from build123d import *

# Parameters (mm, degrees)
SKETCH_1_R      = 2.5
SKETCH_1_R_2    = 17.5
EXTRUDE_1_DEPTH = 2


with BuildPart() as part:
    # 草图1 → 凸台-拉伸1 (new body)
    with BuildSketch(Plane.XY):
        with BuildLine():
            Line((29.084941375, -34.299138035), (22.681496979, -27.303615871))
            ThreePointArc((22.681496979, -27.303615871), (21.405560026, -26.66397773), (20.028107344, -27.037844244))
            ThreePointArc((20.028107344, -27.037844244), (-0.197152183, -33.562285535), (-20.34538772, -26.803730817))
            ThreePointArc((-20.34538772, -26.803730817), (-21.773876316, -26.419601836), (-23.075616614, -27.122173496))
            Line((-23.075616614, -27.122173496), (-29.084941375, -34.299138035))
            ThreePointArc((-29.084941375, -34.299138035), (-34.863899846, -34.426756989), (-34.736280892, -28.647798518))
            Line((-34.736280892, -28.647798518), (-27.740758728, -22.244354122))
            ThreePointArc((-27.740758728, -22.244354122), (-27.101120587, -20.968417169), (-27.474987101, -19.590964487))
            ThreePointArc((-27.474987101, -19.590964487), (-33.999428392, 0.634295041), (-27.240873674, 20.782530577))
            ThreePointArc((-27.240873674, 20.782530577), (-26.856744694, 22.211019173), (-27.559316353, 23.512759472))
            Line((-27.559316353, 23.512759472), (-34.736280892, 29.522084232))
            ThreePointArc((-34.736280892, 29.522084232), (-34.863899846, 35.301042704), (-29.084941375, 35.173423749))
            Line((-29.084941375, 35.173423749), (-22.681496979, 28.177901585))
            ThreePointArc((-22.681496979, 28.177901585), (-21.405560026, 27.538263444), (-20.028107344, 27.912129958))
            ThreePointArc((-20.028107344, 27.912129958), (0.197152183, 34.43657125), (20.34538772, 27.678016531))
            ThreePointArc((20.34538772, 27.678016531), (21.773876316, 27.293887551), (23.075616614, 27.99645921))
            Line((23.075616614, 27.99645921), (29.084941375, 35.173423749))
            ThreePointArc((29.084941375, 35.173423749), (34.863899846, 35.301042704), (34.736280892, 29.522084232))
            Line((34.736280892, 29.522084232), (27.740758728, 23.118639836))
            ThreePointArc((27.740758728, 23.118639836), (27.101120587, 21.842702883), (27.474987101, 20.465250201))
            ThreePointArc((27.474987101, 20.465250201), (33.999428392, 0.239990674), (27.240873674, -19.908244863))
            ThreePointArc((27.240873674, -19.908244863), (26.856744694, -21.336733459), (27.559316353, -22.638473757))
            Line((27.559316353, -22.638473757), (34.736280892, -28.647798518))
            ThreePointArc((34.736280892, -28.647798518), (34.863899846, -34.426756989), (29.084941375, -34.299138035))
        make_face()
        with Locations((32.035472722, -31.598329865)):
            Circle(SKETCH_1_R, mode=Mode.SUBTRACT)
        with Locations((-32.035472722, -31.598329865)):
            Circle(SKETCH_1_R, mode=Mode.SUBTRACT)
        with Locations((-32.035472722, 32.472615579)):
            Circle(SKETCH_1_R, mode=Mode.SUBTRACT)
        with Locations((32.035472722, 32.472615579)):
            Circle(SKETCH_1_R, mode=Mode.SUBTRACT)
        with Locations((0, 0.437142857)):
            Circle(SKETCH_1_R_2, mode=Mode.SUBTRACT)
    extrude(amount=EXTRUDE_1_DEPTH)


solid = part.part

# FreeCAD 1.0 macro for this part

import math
import FreeCAD as App
import Part
import Sketcher

V = App.Vector
Q = App.Units.Quantity

doc = App.newDocument("Part")
params = doc.addObject("Spreadsheet::Sheet", "Params")
for row, (alias, value) in enumerate([
    ("sketch1_diameter", "5 mm"),
    ("sketch1_diameter2", "35 mm"),
    ("sketch1_radius", "4 mm"),
    ("sketch1_radius2", "2 mm"),
    ("sketch1_radius3", "34 mm"),
    ("pad1_length", "2 mm"),
], start=1):
    params.set(f"A{row}", alias)
    params.set(f"B{row}", "=" + value)
    params.setAlias(f"B{row}", alias)

body = doc.addObject("PartDesign::Body", "Body")

# Sketch on XY plane
sketch1 = doc.addObject("Sketcher::SketchObject", "Sketch")
body.addObject(sketch1)
sketch1.AttachmentSupport = (doc.XY_Plane, [""])
sketch1.MapMode = "FlatFace"
sketch1.addGeometry([
    Part.LineSegment(V(22.7, -27.3, 0), V(29.1, -34.3, 0)),  # 0
    Part.ArcOfCircle(Part.Circle(V(32, -31.6, 0), V(0, 0, 1), 4), math.radians(-138), math.radians(48)),  # 1
    Part.LineSegment(V(34.7, -28.6, 0), V(27.6, -22.6, 0)),  # 2
    Part.ArcOfCircle(Part.Circle(V(28.8, -21.1, 0), V(0, 0, 1), 2), math.radians(143), math.radians(230)),  # 3
    Part.ArcOfCircle(Part.Circle(V(0, 0.4, 0), V(0, 0, 1), 34), math.radians(-37), math.radians(36)),  # 4
    Part.ArcOfCircle(Part.Circle(V(29.1, 21.6, 0), V(0, 0, 1), 2), math.radians(132), math.radians(216)),  # 5
    Part.LineSegment(V(27.7, 23.1, 0), V(34.7, 29.5, 0)),  # 6
    Part.ArcOfCircle(Part.Circle(V(32, 32.5, 0), V(0, 0, 1), 4), math.radians(-48), math.radians(138)),  # 7
    Part.LineSegment(V(29.1, 35.2, 0), V(23.1, 28, 0)),  # 8
    Part.ArcOfCircle(Part.Circle(V(21.5, 29.3, 0), V(0, 0, 1), 2), math.radians(-127), math.radians(-40)),  # 9
    Part.ArcOfCircle(Part.Circle(V(0, 0.4, 0), V(0, 0, 1), 34), math.radians(53), math.radians(126)),  # 10
    Part.ArcOfCircle(Part.Circle(V(-21.2, 29.5, 0), V(0, 0, 1), 2), math.radians(-138), math.radians(-54)),  # 11
    Part.LineSegment(V(-22.7, 28.2, 0), V(-29.1, 35.2, 0)),  # 12
    Part.ArcOfCircle(Part.Circle(V(-32, 32.5, 0), V(0, 0, 1), 4), math.radians(42), math.radians(228)),  # 13
    Part.LineSegment(V(-34.7, 29.5, 0), V(-27.6, 23.5, 0)),  # 14
    Part.ArcOfCircle(Part.Circle(V(-28.8, 22, 0), V(0, 0, 1), 2), math.radians(-37), math.radians(50)),  # 15
    Part.ArcOfCircle(Part.Circle(V(0, 0.4, 0), V(0, 0, 1), 34), math.radians(143), math.radians(216)),  # 16
    Part.ArcOfCircle(Part.Circle(V(-29.1, -20.8, 0), V(0, 0, 1), 2), math.radians(-48), math.radians(36)),  # 17
    Part.LineSegment(V(-27.7, -22.2, 0), V(-34.7, -28.6, 0)),  # 18
    Part.ArcOfCircle(Part.Circle(V(-32, -31.6, 0), V(0, 0, 1), 4), math.radians(132), math.radians(318)),  # 19
    Part.LineSegment(V(-29.1, -34.3, 0), V(-23.1, -27.1, 0)),  # 20
    Part.ArcOfCircle(Part.Circle(V(-21.5, -28.4, 0), V(0, 0, 1), 2), math.radians(53), math.radians(140)),  # 21
    Part.ArcOfCircle(Part.Circle(V(0, 0.4, 0), V(0, 0, 1), 34), math.radians(-127), math.radians(-54)),  # 22
    Part.ArcOfCircle(Part.Circle(V(21.2, -28.7, 0), V(0, 0, 1), 2), math.radians(42), math.radians(126)),  # 23
    Part.Circle(V(32, -31.6, 0), V(0, 0, 1), 2.5),  # 24
    Part.Circle(V(-32, -31.6, 0), V(0, 0, 1), 2.5),  # 25
    Part.Circle(V(32, 32.5, 0), V(0, 0, 1), 2.5),  # 26
    Part.Circle(V(0, 0.4, 0), V(0, 0, 1), 17.5),  # 27
    Part.Circle(V(-32, 32.5, 0), V(0, 0, 1), 2.5),  # 28
], False)
sketch1.addConstraint([
    Sketcher.Constraint("Tangent", 0, 2, 1, 1),
    Sketcher.Constraint("Coincident", 1, 2, 2, 1),
    Sketcher.Constraint("Tangent", 2, 2, 3, 2),
    Sketcher.Constraint("Tangent", 3, 1, 4, 1),
    Sketcher.Constraint("Tangent", 4, 2, 5, 2),
    Sketcher.Constraint("Tangent", 5, 1, 6, 1),
    Sketcher.Constraint("Tangent", 6, 2, 7, 1),
    Sketcher.Constraint("Coincident", 7, 2, 8, 1),
    Sketcher.Constraint("Tangent", 8, 2, 9, 2),
    Sketcher.Constraint("Tangent", 9, 1, 10, 1),
    Sketcher.Constraint("Tangent", 10, 2, 11, 2),
    Sketcher.Constraint("Tangent", 11, 1, 12, 1),
    Sketcher.Constraint("Tangent", 12, 2, 13, 1),
    Sketcher.Constraint("Coincident", 13, 2, 14, 1),
    Sketcher.Constraint("Tangent", 14, 2, 15, 2),
    Sketcher.Constraint("Tangent", 15, 1, 16, 1),
    Sketcher.Constraint("Tangent", 16, 2, 17, 2),
    Sketcher.Constraint("Tangent", 17, 1, 18, 1),
    Sketcher.Constraint("Tangent", 18, 2, 19, 1),
    Sketcher.Constraint("Coincident", 19, 2, 20, 1),
    Sketcher.Constraint("Tangent", 20, 2, 21, 2),
    Sketcher.Constraint("Tangent", 21, 1, 22, 1),
    Sketcher.Constraint("Tangent", 22, 2, 23, 2),
    Sketcher.Constraint("Tangent", 23, 1, 0, 1),
    Sketcher.Constraint("Coincident", 10, 3, 4, 3),
    Sketcher.Constraint("Coincident", 16, 3, 4, 3),
    Sketcher.Constraint("Coincident", 22, 3, 4, 3),
    Sketcher.Constraint("Coincident", 24, 3, 1, 3),
    Sketcher.Constraint("Coincident", 25, 3, 19, 3),
    Sketcher.Constraint("Coincident", 26, 3, 7, 3),
    Sketcher.Constraint("Coincident", 27, 3, 4, 3),
    Sketcher.Constraint("Coincident", 28, 3, 13, 3),
    Sketcher.Constraint("Equal", 3, 5),
    Sketcher.Constraint("Equal", 1, 7),
    Sketcher.Constraint("Equal", 5, 9),
    Sketcher.Constraint("Equal", 4, 10),
    Sketcher.Constraint("Equal", 9, 11),
    Sketcher.Constraint("Equal", 7, 13),
    Sketcher.Constraint("Equal", 11, 15),
    Sketcher.Constraint("Equal", 10, 16),
    Sketcher.Constraint("Equal", 15, 17),
    Sketcher.Constraint("Equal", 13, 19),
    Sketcher.Constraint("Equal", 17, 21),
    Sketcher.Constraint("Equal", 16, 22),
    Sketcher.Constraint("Equal", 21, 23),
    Sketcher.Constraint("Equal", 24, 25),
    Sketcher.Constraint("Equal", 25, 26),
    Sketcher.Constraint("Equal", 26, 28),
    Sketcher.Constraint("Symmetric", 7, 3, 13, 3, -2),
    Sketcher.Constraint("Symmetric", 1, 3, 19, 3, -2),
    Sketcher.Constraint("PointOnObject", 4, 3, -2),
    Sketcher.Constraint("Perpendicular", 0, 6),
    Sketcher.Constraint("Perpendicular", 2, 8),
    Sketcher.Constraint("Perpendicular", 6, 12),
    Sketcher.Constraint("Perpendicular", 8, 14),
    Sketcher.Constraint("Perpendicular", 12, 18),
    Sketcher.Constraint("Perpendicular", 14, 20),
    Sketcher.Constraint("Horizontal", 7, 2, 12, 2),
    Sketcher.Constraint("Horizontal", 6, 2, 13, 2),
    Sketcher.Constraint("Horizontal", 1, 2, 18, 2),
    Sketcher.Constraint("Horizontal", 0, 2, 19, 2),
    Sketcher.Constraint("Vertical", 1, 3, 7, 3),
    Sketcher.Constraint("Equal", 0, 6),
    Sketcher.Constraint("Equal", 2, 8),
    Sketcher.Constraint("Diameter", 24, Q("5 mm")),
    Sketcher.Constraint("Diameter", 27, Q("35 mm")),
    Sketcher.Constraint("Radius", 1, Q("4 mm")),
    Sketcher.Constraint("Radius", 3, Q("2 mm")),
    Sketcher.Constraint("Radius", 4, Q("34 mm")),
    Sketcher.Constraint("Distance", 2, Q("9.360598 mm")),
    Sketcher.Constraint("DistanceY", 1, 2, -1, 1, Q("28.647799 mm")),
    Sketcher.Constraint("DistanceY", -1, 1, 11, 1, Q("28.177902 mm")),
    Sketcher.Constraint("DistanceX", 3, 1, 1, 3, Q("4.794599 mm")),
])
sketch1.setExpression("Constraints[64]", "Params.sketch1_diameter")
sketch1.setExpression("Constraints[65]", "Params.sketch1_diameter2")
sketch1.setExpression("Constraints[66]", "Params.sketch1_radius")
sketch1.setExpression("Constraints[67]", "Params.sketch1_radius2")
sketch1.setExpression("Constraints[68]", "Params.sketch1_radius3")
pad1 = doc.addObject("PartDesign::Pad", "Pad")
body.addObject(pad1)
pad1.Profile = sketch1
pad1.setExpression("Length", "Params.pad1_length")

doc.recompute()
